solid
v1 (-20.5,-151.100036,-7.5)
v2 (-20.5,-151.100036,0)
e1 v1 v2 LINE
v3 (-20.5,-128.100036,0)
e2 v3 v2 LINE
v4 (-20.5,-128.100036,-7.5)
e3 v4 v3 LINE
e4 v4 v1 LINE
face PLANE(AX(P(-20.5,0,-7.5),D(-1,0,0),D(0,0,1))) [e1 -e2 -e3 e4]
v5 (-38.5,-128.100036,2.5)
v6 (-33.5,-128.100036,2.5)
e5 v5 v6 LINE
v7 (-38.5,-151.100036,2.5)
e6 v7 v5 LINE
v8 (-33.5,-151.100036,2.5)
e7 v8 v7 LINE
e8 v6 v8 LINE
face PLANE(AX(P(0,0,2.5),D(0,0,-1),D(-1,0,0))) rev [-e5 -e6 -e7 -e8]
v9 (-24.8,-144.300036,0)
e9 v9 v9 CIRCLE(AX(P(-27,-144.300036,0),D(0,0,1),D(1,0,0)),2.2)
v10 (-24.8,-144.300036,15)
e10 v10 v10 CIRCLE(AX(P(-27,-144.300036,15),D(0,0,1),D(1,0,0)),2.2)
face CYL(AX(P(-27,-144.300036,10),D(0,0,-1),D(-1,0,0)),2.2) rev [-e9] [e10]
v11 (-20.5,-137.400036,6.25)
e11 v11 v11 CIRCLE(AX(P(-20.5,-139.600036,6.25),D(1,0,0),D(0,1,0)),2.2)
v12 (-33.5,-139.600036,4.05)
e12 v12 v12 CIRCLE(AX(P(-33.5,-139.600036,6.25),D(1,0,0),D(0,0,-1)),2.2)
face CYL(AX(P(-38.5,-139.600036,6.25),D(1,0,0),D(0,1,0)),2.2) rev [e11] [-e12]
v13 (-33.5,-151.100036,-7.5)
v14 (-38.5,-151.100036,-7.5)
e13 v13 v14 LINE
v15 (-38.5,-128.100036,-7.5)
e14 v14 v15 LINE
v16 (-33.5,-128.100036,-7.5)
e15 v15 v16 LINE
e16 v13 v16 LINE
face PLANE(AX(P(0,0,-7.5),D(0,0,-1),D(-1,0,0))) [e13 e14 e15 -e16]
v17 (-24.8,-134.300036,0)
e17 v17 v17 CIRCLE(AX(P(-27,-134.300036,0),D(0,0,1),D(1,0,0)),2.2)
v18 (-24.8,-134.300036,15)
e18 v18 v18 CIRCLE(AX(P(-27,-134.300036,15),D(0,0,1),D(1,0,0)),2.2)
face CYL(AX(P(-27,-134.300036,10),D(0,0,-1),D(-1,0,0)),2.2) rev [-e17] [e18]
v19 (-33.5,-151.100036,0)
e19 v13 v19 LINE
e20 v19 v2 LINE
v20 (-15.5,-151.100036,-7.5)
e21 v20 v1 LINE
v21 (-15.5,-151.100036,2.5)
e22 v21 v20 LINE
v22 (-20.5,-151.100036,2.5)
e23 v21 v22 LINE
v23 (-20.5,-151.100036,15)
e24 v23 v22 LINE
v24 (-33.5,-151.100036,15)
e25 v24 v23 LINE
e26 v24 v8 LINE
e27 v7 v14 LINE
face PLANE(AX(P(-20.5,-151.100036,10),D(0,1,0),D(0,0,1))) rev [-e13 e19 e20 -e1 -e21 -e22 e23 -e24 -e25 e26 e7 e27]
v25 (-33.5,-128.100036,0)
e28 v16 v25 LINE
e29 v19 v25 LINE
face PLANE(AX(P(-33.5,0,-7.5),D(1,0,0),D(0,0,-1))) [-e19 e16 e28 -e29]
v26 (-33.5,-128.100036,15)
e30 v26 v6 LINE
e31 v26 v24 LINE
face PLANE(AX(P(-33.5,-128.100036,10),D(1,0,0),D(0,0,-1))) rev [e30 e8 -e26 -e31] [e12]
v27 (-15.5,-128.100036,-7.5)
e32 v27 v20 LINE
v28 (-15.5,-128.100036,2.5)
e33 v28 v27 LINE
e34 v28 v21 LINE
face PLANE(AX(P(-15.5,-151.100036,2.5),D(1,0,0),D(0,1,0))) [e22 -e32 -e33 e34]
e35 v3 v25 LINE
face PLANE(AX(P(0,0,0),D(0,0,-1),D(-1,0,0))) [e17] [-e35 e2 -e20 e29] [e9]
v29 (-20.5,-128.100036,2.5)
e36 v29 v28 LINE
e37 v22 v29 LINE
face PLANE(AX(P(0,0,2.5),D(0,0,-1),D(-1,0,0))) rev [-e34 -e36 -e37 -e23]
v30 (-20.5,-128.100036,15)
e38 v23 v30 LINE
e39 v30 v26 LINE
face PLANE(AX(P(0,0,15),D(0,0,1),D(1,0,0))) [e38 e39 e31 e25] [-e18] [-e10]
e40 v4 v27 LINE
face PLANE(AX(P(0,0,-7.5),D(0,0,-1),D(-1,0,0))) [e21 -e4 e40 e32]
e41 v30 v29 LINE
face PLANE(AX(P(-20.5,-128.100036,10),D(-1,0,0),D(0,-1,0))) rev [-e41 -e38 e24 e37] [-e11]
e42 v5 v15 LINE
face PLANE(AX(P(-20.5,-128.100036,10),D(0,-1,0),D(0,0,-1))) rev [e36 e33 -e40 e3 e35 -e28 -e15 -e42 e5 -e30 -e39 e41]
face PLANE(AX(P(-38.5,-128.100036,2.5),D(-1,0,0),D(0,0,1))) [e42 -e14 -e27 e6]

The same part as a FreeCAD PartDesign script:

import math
import FreeCAD as App
import Part
import Sketcher
from FreeCAD import Vector


def add_polygon(sketch, points):
    """Adds a closed chain of lines whose ends are joined by coincident constraints."""
    first, n = sketch.GeometryCount, len(points)
    for a, b in zip(points, points[1:] + points[:1]):
        sketch.addGeometry(Part.LineSegment(App.Vector(*a, 0), App.Vector(*b, 0)), False)
    for i in range(n):
        sketch.addConstraint(Sketcher.Constraint("Coincident", first + i, 2, first + (i + 1) % n, 1))

doc = App.newDocument("Part")
params = doc.addObject("Spreadsheet::Sheet", "Params")
for row, (alias, value) in enumerate([
    ("sketch1_diameter", "4.4 mm"),
    ("sketch1_width", "13 mm"),
    ("sketch1_height", "23 mm"),
    ("pad1_length", "10 mm"),
    ("sketch2_width", "5 mm"),
    ("sketch2_height", "23 mm"),
    ("pad2_length", "2.5 mm"),
    ("sketch3_width", "5 mm"),
    ("sketch3_height", "23 mm"),
    ("pad3_length", "7.5 mm"),
    ("sketch4_radius", "2.2 mm"),
    ("sketch5_diameter", "4.4 mm"),
    ("sketch5_width", "13 mm"),
    ("sketch5_height", "23 mm"),
    ("pad4_length", "5 mm"),
], start=1):
    params.set(f"A{row}", alias)
    params.set(f"B{row}", "=" + value)
    params.setAlias(f"B{row}", alias)

body = doc.addObject("PartDesign::Body", "Body")

sketch1 = body.newObject("Sketcher::SketchObject", "Sketch")
sketch1.AttachmentSupport = (doc.getObject("XY_Plane"), [""])
sketch1.MapMode = "FlatFace"
add_polygon(sketch1, [(-33.5, -128.100036), (-33.5, -151.100036), (-20.5, -151.100036), (-20.5, -128.100036)])
sketch1.addGeometry(Part.Circle(Vector(-27, -144.300036, 0), Vector(0, 0, 1), 2.2), False)
sketch1.addGeometry(Part.Circle(Vector(-27, -134.300036, 0), Vector(0, 0, 1), 2.2), False)
sketch1.addConstraint(Sketcher.Constraint("Vertical", 0))
sketch1.addConstraint(Sketcher.Constraint("Horizontal", 1))
sketch1.addConstraint(Sketcher.Constraint("Vertical", 2))
sketch1.addConstraint(Sketcher.Constraint("Horizontal", 3))
sketch1.addConstraint(Sketcher.Constraint("Equal", 4, 5))
sketch1.addConstraint(Sketcher.Constraint("Vertical", 4, 3, 5, 3))
sketch1.addConstraint(Sketcher.Constraint("Diameter", 4, 4.4))
sketch1.addConstraint(Sketcher.Constraint("DistanceX", 1, 1, 1, 2, 13.0))
sketch1.addConstraint(Sketcher.Constraint("DistanceY", 0, 2, 0, 1, 23.0))
sketch1.addConstraint(Sketcher.Constraint("DistanceX", 4, 3, -1, 1, 27.0))
sketch1.addConstraint(Sketcher.Constraint("DistanceY", 4, 3, 5, 3, 10.0))
sketch1.addConstraint(Sketcher.Constraint("DistanceX", 0, 2, -1, 1, 33.5))
sketch1.addConstraint(Sketcher.Constraint("DistanceY", 0, 2, 4, 3, 6.8))
sketch1.addConstraint(Sketcher.Constraint("DistanceY", 4, 3, -1, 1, 144.300036))
sketch1.setExpression("Constraints[10]", "Params.sketch1_diameter")
sketch1.setExpression("Constraints[11]", "Params.sketch1_width")
sketch1.setExpression("Constraints[12]", "Params.sketch1_height")
pad1 = body.newObject("PartDesign::Pad", "Pad")
pad1.Profile = sketch1
pad1.setExpression("Length", "Params.pad1_length")

sketch2 = body.newObject("Sketcher::SketchObject", "Sketch001")
sketch2.AttachmentSupport = (doc.getObject("XY_Plane"), [""])
sketch2.MapMode = "FlatFace"
add_polygon(sketch2, [(-16, -128), (-16, -151), (-20, -151), (-20, -128)])
add_polygon(sketch2, [(-34, -128), (-34, -151), (-38, -151), (-38, -128)])
sketch2.addConstraint(Sketcher.Constraint("Vertical", 0))
sketch2.addConstraint(Sketcher.Constraint("Horizontal", 1))
sketch2.addConstraint(Sketcher.Constraint("Vertical", 2))
sketch2.addConstraint(Sketcher.Constraint("Horizontal", 3))
sketch2.addConstraint(Sketcher.Constraint("Vertical", 4))
sketch2.addConstraint(Sketcher.Constraint("Horizontal", 5))
sketch2.addConstraint(Sketcher.Constraint("Vertical", 6))
sketch2.addConstraint(Sketcher.Constraint("Horizontal", 7))
sketch2.addConstraint(Sketcher.Constraint("Horizontal", 1, 2, 4, 2))
sketch2.addConstraint(Sketcher.Constraint("Horizontal", 3, 2, 6, 2))
sketch2.addConstraint(Sketcher.Constraint("Equal", 3, 5))
sketch2.addConstraint(Sketcher.Constraint("DistanceX", 1, 2, 1, 1, 5.0))
sketch2.addConstraint(Sketcher.Constraint("DistanceY", 0, 2, 0, 1, 23.0))
sketch2.addConstraint(Sketcher.Constraint("DistanceX", 4, 2, 1, 2, 13.0))
sketch2.addConstraint(Sketcher.Constraint("DistanceX", 0, 2, -1, 1, 15.5))
sketch2.addConstraint(Sketcher.Constraint("DistanceY", 0, 2, -1, 1, 151.100036))
sketch2.setExpression("Constraints[19]", "Params.sketch2_width")
sketch2.setExpression("Constraints[20]", "Params.sketch2_height")
pad2 = body.newObject("PartDesign::Pad", "Pad001")
pad2.Profile = sketch2
pad2.setExpression("Length", "Params.pad2_length")

sketch3 = body.newObject("Sketcher::SketchObject", "Sketch002")
sketch3.AttachmentSupport = (doc.getObject("XY_Plane"), [""])
sketch3.MapMode = "FlatFace"
add_polygon(sketch3, [(-16, -128), (-16, -151), (-20, -151), (-20, -128)])
add_polygon(sketch3, [(-34, -128), (-34, -151), (-38, -151), (-38, -128)])
sketch3.addConstraint(Sketcher.Constraint("Vertical", 0))
sketch3.addConstraint(Sketcher.Constraint("Horizontal", 1))
sketch3.addConstraint(Sketcher.Constraint("Vertical", 2))
sketch3.addConstraint(Sketcher.Constraint("Horizontal", 3))
sketch3.addConstraint(Sketcher.Constraint("Vertical", 4))
sketch3.addConstraint(Sketcher.Constraint("Horizontal", 5))
sketch3.addConstraint(Sketcher.Constraint("Vertical", 6))
sketch3.addConstraint(Sketcher.Constraint("Horizontal", 7))
sketch3.addConstraint(Sketcher.Constraint("Horizontal", 1, 2, 4, 2))
sketch3.addConstraint(Sketcher.Constraint("Horizontal", 3, 2, 6, 2))
sketch3.addConstraint(Sketcher.Constraint("Equal", 3, 5))
sketch3.addConstraint(Sketcher.Constraint("DistanceX", 1, 2, 1, 1, 5.0))
sketch3.addConstraint(Sketcher.Constraint("DistanceY", 0, 2, 0, 1, 23.0))
sketch3.addConstraint(Sketcher.Constraint("DistanceX", 4, 2, 1, 2, 13.0))
sketch3.addConstraint(Sketcher.Constraint("DistanceX", 0, 2, -1, 1, 15.5))
sketch3.addConstraint(Sketcher.Constraint("DistanceY", 0, 2, -1, 1, 151.100036))
sketch3.setExpression("Constraints[19]", "Params.sketch3_width")
sketch3.setExpression("Constraints[20]", "Params.sketch3_height")
pad3 = body.newObject("PartDesign::Pad", "Pad002")
pad3.Profile = sketch3
pad3.setExpression("Length", "Params.pad3_length")
pad3.Reversed = True

sketch4 = body.newObject("Sketcher::SketchObject", "Sketch003")
sketch4.AttachmentSupport = (doc.getObject("YZ_Plane"), [""])
sketch4.MapMode = "FlatFace"
sketch4.AttachmentOffset = App.Placement(Vector(0, 0, -20.5), App.Rotation())
sketch4.addGeometry(Part.ArcOfCircle(Part.Circle(Vector(-139.600036, 6.25, 0), Vector(0, 0, 1), 2.2), math.radians(0), math.radians(180)), False)
sketch4.addGeometry(Part.ArcOfCircle(Part.Circle(Vector(-139.600036, 6.25, 0), Vector(0, 0, 1), 2.2), math.radians(180), math.radians(270)), False)
sketch4.addGeometry(Part.ArcOfCircle(Part.Circle(Vector(-139.600036, 6.25, 0), Vector(0, 0, 1), 2.2), math.radians(-90), math.radians(0)), False)
sketch4.addConstraint(Sketcher.Constraint("Tangent", 0, 2, 1, 1))
sketch4.addConstraint(Sketcher.Constraint("Tangent", 1, 2, 2, 1))
sketch4.addConstraint(Sketcher.Constraint("Tangent", 2, 2, 0, 1))
sketch4.addConstraint(Sketcher.Constraint("Horizontal", 2, 3, 0, 2))
sketch4.addConstraint(Sketcher.Constraint("Horizontal", 0, 2, 2, 2))
sketch4.addConstraint(Sketcher.Constraint("Vertical", 2, 3, 1, 2))
sketch4.addConstraint(Sketcher.Constraint("Radius", 0, 2.2))
sketch4.addConstraint(Sketcher.Constraint("DistanceY", -1, 1, 0, 3, 6.25))
sketch4.addConstraint(Sketcher.Constraint("DistanceX", 0, 3, -1, 1, 139.600036))
sketch4.setExpression("Constraints[6]", "Params.sketch4_radius")
pocket1 = body.newObject("PartDesign::Pocket", "Pocket")
pocket1.Profile = sketch4
pocket1.Type = "ThroughAll"

sketch5 = body.newObject("Sketcher::SketchObject", "Sketch004")
sketch5.AttachmentSupport = (doc.getObject("XY_Plane"), [""])
sketch5.MapMode = "FlatFace"
sketch5.AttachmentOffset = App.Placement(Vector(0, 0, 10), App.Rotation())
add_polygon(sketch5, [(-33.5, -128.100036), (-33.5, -151.100036), (-20.5, -151.100036), (-20.5, -128.100036)])
sketch5.addGeometry(Part.Circle(Vector(-27, -144.300036, 0), Vector(0, 0, 1), 2.2), False)
sketch5.addGeometry(Part.Circle(Vector(-27, -134.300036, 0), Vector(0, 0, 1), 2.2), False)
sketch5.addConstraint(Sketcher.Constraint("Vertical", 0))
sketch5.addConstraint(Sketcher.Constraint("Horizontal", 1))
sketch5.addConstraint(Sketcher.Constraint("Vertical", 2))
sketch5.addConstraint(Sketcher.Constraint("Horizontal", 3))
sketch5.addConstraint(Sketcher.Constraint("Equal", 4, 5))
sketch5.addConstraint(Sketcher.Constraint("Vertical", 4, 3, 5, 3))
sketch5.addConstraint(Sketcher.Constraint("Diameter", 4, 4.4))
sketch5.addConstraint(Sketcher.Constraint("DistanceX", 1, 1, 1, 2, 13.0))
sketch5.addConstraint(Sketcher.Constraint("DistanceY", 0, 2, 0, 1, 23.0))
sketch5.addConstraint(Sketcher.Constraint("DistanceX", 4, 3, -1, 1, 27.0))
sketch5.addConstraint(Sketcher.Constraint("DistanceY", 4, 3, 5, 3, 10.0))
sketch5.addConstraint(Sketcher.Constraint("DistanceX", 0, 2, -1, 1, 33.5))
sketch5.addConstraint(Sketcher.Constraint("DistanceY", 0, 2, 4, 3, 6.8))
sketch5.addConstraint(Sketcher.Constraint("DistanceY", 4, 3, -1, 1, 144.300036))
sketch5.setExpression("Constraints[10]", "Params.sketch5_diameter")
sketch5.setExpression("Constraints[11]", "Params.sketch5_width")
sketch5.setExpression("Constraints[12]", "Params.sketch5_height")
pad4 = body.newObject("PartDesign::Pad", "Pad003")
pad4.Profile = sketch5
pad4.setExpression("Length", "Params.pad4_length")

doc.recompute()
